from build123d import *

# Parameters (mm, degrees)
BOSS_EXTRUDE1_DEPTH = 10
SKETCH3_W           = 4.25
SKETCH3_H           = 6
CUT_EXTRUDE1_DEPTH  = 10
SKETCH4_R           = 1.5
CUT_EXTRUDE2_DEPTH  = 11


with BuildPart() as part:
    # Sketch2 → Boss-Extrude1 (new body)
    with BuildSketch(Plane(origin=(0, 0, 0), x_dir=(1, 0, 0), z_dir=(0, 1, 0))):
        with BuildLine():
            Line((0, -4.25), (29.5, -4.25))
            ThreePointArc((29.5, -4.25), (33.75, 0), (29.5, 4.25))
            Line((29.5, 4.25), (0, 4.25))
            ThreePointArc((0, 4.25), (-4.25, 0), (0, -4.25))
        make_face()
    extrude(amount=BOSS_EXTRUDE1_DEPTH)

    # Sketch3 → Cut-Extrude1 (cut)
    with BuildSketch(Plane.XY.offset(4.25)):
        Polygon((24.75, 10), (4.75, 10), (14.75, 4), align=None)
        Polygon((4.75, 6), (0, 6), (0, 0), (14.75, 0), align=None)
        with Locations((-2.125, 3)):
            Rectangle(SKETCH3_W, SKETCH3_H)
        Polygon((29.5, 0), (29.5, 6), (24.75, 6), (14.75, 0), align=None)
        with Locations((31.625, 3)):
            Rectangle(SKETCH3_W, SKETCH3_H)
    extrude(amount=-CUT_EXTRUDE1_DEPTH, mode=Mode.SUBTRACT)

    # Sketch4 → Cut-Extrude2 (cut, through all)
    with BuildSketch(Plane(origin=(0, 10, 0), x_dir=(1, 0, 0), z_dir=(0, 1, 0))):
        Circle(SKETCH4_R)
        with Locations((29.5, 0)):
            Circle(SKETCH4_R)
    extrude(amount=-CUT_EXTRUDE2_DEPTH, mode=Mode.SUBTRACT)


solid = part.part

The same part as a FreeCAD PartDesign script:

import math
import FreeCAD as App
import Part
import Sketcher
from FreeCAD import Vector

doc = App.newDocument("Part")
params = doc.addObject("Spreadsheet::Sheet", "Params")
for row, (alias, value) in enumerate([
    ("sketch1_radius", "4.25 mm"),
    ("sketch1_width", "29.5 mm"),
    ("pad1_length", "10 mm"),
    ("sketch2_width", "20 mm"),
    ("sketch2_width2", "9 mm"),
    ("sketch2_height", "6 mm"),
    ("pocket1_length", "10 mm"),
    ("sketch3_diameter", "3 mm"),
], start=1):
    params.set(f"A{row}", alias)
    params.set(f"B{row}", "=" + value)
    params.setAlias(f"B{row}", alias)

body = doc.addObject("PartDesign::Body", "Body")

# Sketch on XZ plane
sketch1 = body.newObject("Sketcher::SketchObject", "Sketch")
sketch1.AttachmentSupport = (doc.getObject("XZ_Plane"), [""])
sketch1.MapMode = "FlatFace"
sketch1.addGeometry([
    Part.LineSegment(Vector(0, 4.2, 0), Vector(29.5, 4.2, 0)),
    Part.ArcOfCircle(Part.Circle(Vector(29.5, 0, 0), Vector(0, 0, 1), 4.2), math.radians(-90), math.radians(90)),
    Part.LineSegment(Vector(29.5, -4.2, 0), Vector(0, -4.2, 0)),
    Part.ArcOfCircle(Part.Circle(Vector(0, 0, 0), Vector(0, 0, 1), 4.2), math.radians(90), math.radians(270)),
], False)
sketch1.addConstraint([
    Sketcher.Constraint("Tangent", 0, 2, 1, 2),
    Sketcher.Constraint("Tangent", 1, 1, 2, 1),
    Sketcher.Constraint("Tangent", 2, 2, 3, 2),
    Sketcher.Constraint("Tangent", 3, 1, 0, 1),
    Sketcher.Constraint("Horizontal", 0),
    Sketcher.Constraint("Horizontal", 2),
    Sketcher.Constraint("Coincident", 3, 3, -1, 1),
    Sketcher.Constraint("Radius", 1, 4.25),
    Sketcher.Constraint("DistanceX", 0, 1, 0, 2, 29.5),
])
sketch1.setExpression("Constraints[7]", "Params.sketch1_radius")
sketch1.setExpression("Constraints[8]", "Params.sketch1_width")
pad1 = body.newObject("PartDesign::Pad", "Pad")
pad1.Profile = sketch1
pad1.setExpression("Length", "Params.pad1_length")
pad1.Reversed = True

# Sketch on XY plane
sketch2 = body.newObject("Sketcher::SketchObject", "Sketch001")
sketch2.AttachmentSupport = (doc.getObject("XY_Plane"), [""])
sketch2.MapMode = "FlatFace"
sketch2.AttachmentOffset = App.Placement(Vector(0, 0, 4.25), App.Rotation())
sketch2.addGeometry([
    Part.LineSegment(Vector(25, 10, 0), Vector(5, 10, 0)),  # 0
    Part.LineSegment(Vector(5, 10, 0), Vector(15, 4, 0)),  # 1
    Part.LineSegment(Vector(15, 4, 0), Vector(25, 10, 0)),  # 2
    Part.LineSegment(Vector(5, 6, 0), Vector(-4, 6, 0)),  # 3
    Part.LineSegment(Vector(-4, 6, 0), Vector(-4, 0, 0)),  # 4
    Part.LineSegment(Vector(-4, 0, 0), Vector(15, 0, 0)),  # 5
    Part.LineSegment(Vector(15, 0, 0), Vector(5, 6, 0)),  # 6
    Part.LineSegment(Vector(25, 6, 0), Vector(15, 0, 0)),  # 7
    Part.LineSegment(Vector(15, 0, 0), Vector(34, 0, 0)),  # 8
    Part.LineSegment(Vector(34, 0, 0), Vector(34, 6, 0)),  # 9
    Part.LineSegment(Vector(34, 6, 0), Vector(25, 6, 0)),  # 10
], False)
sketch2.addConstraint([
    Sketcher.Constraint("Coincident", 0, 2, 1, 1),
    Sketcher.Constraint("Coincident", 1, 2, 2, 1),
    Sketcher.Constraint("Coincident", 2, 2, 0, 1),
    Sketcher.Constraint("Coincident", 3, 2, 4, 1),
    Sketcher.Constraint("Coincident", 4, 2, 5, 1),
    Sketcher.Constraint("Coincident", 5, 2, 6, 1),
    Sketcher.Constraint("Coincident", 6, 2, 3, 1),
    Sketcher.Constraint("Coincident", 7, 2, 8, 1),
    Sketcher.Constraint("Coincident", 8, 2, 9, 1),
    Sketcher.Constraint("Coincident", 9, 2, 10, 1),
    Sketcher.Constraint("Coincident", 10, 2, 7, 1),
    Sketcher.Constraint("Horizontal", 0),
    Sketcher.Constraint("Horizontal", 3),
    Sketcher.Constraint("Vertical", 4),
    Sketcher.Constraint("Horizontal", 5),
    Sketcher.Constraint("Horizontal", 8),
    Sketcher.Constraint("Vertical", 9),
    Sketcher.Constraint("Horizontal", 10),
    Sketcher.Constraint("Coincident", 7, 2, 5, 2),
    Sketcher.Constraint("PointOnObject", 4, 2, -1),
    Sketcher.Constraint("Parallel", 1, 6),
    Sketcher.Constraint("Parallel", 2, 7),
    Sketcher.Constraint("Horizontal", 6, 2, 9, 2),
    Sketcher.Constraint("Vertical", 1, 2, 5, 2),
    Sketcher.Constraint("Vertical", 0, 2, 6, 2),
    Sketcher.Constraint("Equal", 5, 8),
    Sketcher.Constraint("Equal", 3, 10),
    Sketcher.Constraint("DistanceX", 0, 2, 0, 1, 20.0),
    Sketcher.Constraint("DistanceX", 3, 2, 3, 1, 9.0),
    Sketcher.Constraint("DistanceY", 4, 2, 4, 1, 6.0),
    Sketcher.Constraint("DistanceY", -1, 1, 0, 2, 10.0),
    Sketcher.Constraint("DistanceX", -1, 1, 0, 2, 4.75),
])
sketch2.setExpression("Constraints[27]", "Params.sketch2_width")
sketch2.setExpression("Constraints[28]", "Params.sketch2_width2")
sketch2.setExpression("Constraints[29]", "Params.sketch2_height")
pocket1 = body.newObject("PartDesign::Pocket", "Pocket")
pocket1.Profile = sketch2
pocket1.setExpression("Length", "Params.pocket1_length")

# Sketch on XZ plane
sketch3 = body.newObject("Sketcher::SketchObject", "Sketch002")
sketch3.AttachmentSupport = (doc.getObject("XZ_Plane"), [""])
sketch3.MapMode = "FlatFace"
sketch3.AttachmentOffset = App.Placement(Vector(0, 0, -10), App.Rotation())
sketch3.addGeometry([
    Part.Circle(Vector(0, 0, 0), Vector(0, 0, 1), 1.5),
    Part.Circle(Vector(29.5, 0, 0), Vector(0, 0, 1), 1.5),
], False)
sketch3.addConstraint([
    Sketcher.Constraint("Coincident", 0, 3, -1, 1),
    Sketcher.Constraint("Equal", 0, 1),
    Sketcher.Constraint("PointOnObject", 1, 3, -1),
    Sketcher.Constraint("Diameter", 0, 3.0),
    Sketcher.Constraint("DistanceX", -1, 1, 1, 3, 29.5),
])
sketch3.setExpression("Constraints[3]", "Params.sketch3_diameter")
pocket2 = body.newObject("PartDesign::Pocket", "Pocket001")
pocket2.Profile = sketch3
pocket2.Type = "ThroughAll"
pocket2.Reversed = True

doc.recompute()
